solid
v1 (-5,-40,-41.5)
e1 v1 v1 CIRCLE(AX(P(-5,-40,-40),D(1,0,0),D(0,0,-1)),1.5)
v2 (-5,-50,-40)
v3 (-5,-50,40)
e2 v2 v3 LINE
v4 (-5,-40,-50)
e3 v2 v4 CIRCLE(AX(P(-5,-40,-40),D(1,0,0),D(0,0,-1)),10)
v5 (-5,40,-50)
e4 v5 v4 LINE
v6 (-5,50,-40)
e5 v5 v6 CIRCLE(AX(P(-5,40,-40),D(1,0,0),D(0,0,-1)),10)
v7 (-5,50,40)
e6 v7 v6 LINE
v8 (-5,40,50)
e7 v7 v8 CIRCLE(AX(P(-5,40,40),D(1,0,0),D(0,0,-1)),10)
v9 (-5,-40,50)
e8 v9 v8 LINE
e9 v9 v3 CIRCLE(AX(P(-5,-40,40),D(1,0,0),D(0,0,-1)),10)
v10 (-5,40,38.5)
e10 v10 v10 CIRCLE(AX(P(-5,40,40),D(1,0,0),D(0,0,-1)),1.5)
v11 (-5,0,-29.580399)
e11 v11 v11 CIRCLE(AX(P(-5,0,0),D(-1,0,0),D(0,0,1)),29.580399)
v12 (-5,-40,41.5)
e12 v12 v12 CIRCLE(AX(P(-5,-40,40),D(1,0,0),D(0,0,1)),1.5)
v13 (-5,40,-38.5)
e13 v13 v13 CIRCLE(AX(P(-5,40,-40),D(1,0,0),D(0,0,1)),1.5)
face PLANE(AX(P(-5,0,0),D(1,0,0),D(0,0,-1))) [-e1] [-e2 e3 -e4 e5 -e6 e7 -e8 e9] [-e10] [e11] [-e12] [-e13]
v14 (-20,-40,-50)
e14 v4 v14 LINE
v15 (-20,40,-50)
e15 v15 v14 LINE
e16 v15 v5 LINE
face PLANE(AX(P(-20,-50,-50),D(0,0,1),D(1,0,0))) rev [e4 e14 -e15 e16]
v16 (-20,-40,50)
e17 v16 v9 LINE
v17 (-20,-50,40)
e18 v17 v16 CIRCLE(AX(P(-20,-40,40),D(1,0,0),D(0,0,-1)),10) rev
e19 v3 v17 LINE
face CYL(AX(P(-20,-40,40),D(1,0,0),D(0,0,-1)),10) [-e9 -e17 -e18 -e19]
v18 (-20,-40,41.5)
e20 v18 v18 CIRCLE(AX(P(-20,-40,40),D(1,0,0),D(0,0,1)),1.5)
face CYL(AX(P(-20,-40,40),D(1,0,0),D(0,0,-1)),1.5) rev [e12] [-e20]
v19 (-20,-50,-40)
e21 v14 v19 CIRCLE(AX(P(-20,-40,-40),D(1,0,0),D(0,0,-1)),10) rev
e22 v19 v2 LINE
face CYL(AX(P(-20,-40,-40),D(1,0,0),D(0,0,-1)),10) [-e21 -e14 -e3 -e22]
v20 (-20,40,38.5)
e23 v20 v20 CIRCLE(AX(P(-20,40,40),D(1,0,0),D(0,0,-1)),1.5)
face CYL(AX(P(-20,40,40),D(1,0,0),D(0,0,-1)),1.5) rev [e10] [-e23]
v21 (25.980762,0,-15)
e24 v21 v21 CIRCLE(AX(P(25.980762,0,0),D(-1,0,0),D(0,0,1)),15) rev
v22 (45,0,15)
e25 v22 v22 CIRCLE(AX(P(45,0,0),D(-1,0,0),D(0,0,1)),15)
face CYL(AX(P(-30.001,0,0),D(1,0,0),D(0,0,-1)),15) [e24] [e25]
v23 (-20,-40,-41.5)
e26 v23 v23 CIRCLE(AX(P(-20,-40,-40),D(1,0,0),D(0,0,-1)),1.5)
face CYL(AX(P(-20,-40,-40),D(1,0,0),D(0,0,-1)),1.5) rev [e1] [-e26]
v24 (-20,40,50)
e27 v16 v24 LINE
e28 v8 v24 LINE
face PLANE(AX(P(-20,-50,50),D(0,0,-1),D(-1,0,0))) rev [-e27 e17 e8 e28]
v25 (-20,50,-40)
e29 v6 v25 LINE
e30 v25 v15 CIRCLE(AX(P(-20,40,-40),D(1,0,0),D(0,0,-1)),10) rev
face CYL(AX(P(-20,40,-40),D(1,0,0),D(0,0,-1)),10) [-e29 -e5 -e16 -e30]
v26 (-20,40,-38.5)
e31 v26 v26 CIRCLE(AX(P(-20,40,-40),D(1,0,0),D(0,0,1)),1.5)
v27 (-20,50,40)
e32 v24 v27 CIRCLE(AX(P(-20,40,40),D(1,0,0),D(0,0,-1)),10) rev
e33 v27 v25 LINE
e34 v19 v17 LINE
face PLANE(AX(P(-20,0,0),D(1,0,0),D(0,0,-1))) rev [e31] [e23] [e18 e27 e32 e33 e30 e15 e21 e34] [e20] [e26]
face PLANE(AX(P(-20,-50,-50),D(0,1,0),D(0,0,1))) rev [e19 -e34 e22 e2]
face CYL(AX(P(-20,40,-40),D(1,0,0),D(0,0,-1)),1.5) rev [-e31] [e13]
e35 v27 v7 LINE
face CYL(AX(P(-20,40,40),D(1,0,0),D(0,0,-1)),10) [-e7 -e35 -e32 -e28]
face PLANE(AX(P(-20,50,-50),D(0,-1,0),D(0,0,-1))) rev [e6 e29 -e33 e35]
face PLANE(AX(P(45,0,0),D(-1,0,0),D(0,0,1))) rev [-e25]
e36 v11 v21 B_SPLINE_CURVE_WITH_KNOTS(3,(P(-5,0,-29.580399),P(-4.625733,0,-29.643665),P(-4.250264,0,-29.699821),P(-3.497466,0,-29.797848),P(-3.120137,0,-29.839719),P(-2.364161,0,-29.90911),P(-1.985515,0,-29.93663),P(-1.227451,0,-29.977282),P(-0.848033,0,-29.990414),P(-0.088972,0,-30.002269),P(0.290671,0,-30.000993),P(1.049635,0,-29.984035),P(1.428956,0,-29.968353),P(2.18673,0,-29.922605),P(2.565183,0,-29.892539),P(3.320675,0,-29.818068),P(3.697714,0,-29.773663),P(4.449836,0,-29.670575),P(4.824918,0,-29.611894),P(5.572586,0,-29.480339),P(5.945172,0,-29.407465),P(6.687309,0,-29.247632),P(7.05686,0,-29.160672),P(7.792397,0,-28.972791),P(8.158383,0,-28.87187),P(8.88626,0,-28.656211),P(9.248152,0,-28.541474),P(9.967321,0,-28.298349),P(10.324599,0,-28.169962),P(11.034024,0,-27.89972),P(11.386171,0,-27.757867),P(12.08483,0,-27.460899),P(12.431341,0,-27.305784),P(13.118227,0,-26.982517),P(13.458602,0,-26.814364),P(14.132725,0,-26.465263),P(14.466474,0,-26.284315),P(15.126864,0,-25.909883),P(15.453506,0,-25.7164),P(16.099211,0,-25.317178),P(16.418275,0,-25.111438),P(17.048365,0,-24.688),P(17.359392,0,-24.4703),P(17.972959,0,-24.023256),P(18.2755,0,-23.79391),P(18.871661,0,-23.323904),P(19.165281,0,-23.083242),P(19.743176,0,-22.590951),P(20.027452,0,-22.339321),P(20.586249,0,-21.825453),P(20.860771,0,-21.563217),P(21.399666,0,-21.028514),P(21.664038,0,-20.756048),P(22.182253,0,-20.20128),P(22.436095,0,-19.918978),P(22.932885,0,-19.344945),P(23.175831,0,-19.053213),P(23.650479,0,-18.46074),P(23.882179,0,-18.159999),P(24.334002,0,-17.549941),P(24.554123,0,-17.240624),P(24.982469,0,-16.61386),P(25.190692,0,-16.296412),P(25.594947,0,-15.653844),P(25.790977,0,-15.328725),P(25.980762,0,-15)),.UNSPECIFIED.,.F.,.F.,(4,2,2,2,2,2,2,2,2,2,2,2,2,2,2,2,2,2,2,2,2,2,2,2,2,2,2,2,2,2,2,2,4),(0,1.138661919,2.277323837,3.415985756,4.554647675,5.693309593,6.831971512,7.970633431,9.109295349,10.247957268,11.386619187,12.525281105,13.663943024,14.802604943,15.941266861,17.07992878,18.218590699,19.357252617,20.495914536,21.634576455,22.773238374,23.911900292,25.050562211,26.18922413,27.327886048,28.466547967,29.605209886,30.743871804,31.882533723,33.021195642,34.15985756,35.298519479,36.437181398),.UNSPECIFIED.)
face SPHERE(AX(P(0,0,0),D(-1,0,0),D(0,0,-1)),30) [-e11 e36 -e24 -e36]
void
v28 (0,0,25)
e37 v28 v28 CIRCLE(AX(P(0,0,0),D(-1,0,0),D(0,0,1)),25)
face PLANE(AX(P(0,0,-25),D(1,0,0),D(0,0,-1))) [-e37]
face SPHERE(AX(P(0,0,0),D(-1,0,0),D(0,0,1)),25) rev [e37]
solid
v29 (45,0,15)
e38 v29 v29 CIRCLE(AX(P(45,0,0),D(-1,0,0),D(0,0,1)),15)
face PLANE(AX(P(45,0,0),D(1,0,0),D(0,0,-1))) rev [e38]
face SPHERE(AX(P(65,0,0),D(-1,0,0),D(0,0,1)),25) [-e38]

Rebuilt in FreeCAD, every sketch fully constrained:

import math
import FreeCAD as App
import Part
import Sketcher
Q = App.Units.Quantity


def edges_at(feature, points):
    """Names of the edges that pass closest to the given points."""
    edges = feature.Shape.Edges
    near = lambda p: min(range(len(edges)), key=lambda i: edges[i].distToShape(Part.Vertex(*p))[0])
    return sorted({f"Edge{near(p) + 1}" for p in points})


def add_polygon(sketch, points):
    """Adds a closed chain of lines whose ends are joined by coincident constraints."""
    first, n = sketch.GeometryCount, len(points)
    for a, b in zip(points, points[1:] + points[:1]):
        sketch.addGeometry(Part.LineSegment(App.Vector(*a, 0), App.Vector(*b, 0)), False)
    for i in range(n):
        sketch.addConstraint(Sketcher.Constraint("Coincident", first + i, 2, first + (i + 1) % n, 1))

doc = App.newDocument("Part")
params = doc.addObject("Spreadsheet::Sheet", "Params")
for row, (alias, value) in enumerate([
    ("sketch1_radius", "25 mm"),
    ("sketch1_radius2", "30 mm"),
    ("revolution_angle", "360 deg"),
    ("sketch2_diameter", "30 mm"),
    ("pad1_length", "10 mm"),
    ("sketch3_diameter", "30 mm"),
    ("sketch4_width", "100 mm"),
    ("pad3_length", "15 mm"),
    ("fillet_radius", "10 mm"),
    ("sketch5_diameter", "3 mm"),
    ("pocket1_length", "15 mm"),
    ("sketch6_radius", "25 mm"),
    ("sketch6_width", "45 mm"),
    ("revolution2_angle", "360 deg"),
], start=1):
    params.set(f"A{row}", alias)
    params.set(f"B{row}", "=" + value)
    params.setAlias(f"B{row}", alias)

body = doc.addObject("PartDesign::Body", "Body")
body.AllowCompound = True

# Sketch on XZ plane
sketch1 = body.newObject("Sketcher::SketchObject", "Sketch")
sketch1.AttachmentSupport = (doc.getObject("XZ_Plane"), [""])
sketch1.MapMode = "FlatFace"
sketch1.addGeometry(Part.ArcOfCircle(Part.Circle(App.Vector(0, 0, 0), App.Vector(0, 0, 1), 25), math.radians(-90), math.radians(0)), False)
sketch1.addGeometry(Part.LineSegment(App.Vector(25, 0, 0), App.Vector(30, 0, 0)), False)
sketch1.addGeometry(Part.ArcOfCircle(Part.Circle(App.Vector(0, 0, 0), App.Vector(0, 0, 1), 30), math.radians(-100), math.radians(0)), False)
sketch1.addGeometry(Part.LineSegment(App.Vector(-5, -30, 0), App.Vector(-5, 0, 0)), False)
sketch1.addGeometry(Part.LineSegment(App.Vector(-5, 0, 0), App.Vector(0, 0, 0)), False)
sketch1.addGeometry(Part.LineSegment(App.Vector(0, 0, 0), App.Vector(0, -25, 0)), False)
sketch1.addConstraint(Sketcher.Constraint("Coincident", 0, 2, 1, 1))
sketch1.addConstraint(Sketcher.Constraint("Coincident", 1, 2, 2, 2))
sketch1.addConstraint(Sketcher.Constraint("Coincident", 2, 1, 3, 1))
sketch1.addConstraint(Sketcher.Constraint("Coincident", 3, 2, 4, 1))
sketch1.addConstraint(Sketcher.Constraint("Coincident", 4, 2, 5, 1))
sketch1.addConstraint(Sketcher.Constraint("Coincident", 5, 2, 0, 1))
sketch1.addConstraint(Sketcher.Constraint("Horizontal", 1))
sketch1.addConstraint(Sketcher.Constraint("Vertical", 3))
sketch1.addConstraint(Sketcher.Constraint("Horizontal", 4))
sketch1.addConstraint(Sketcher.Constraint("Vertical", 5))
sketch1.addConstraint(Sketcher.Constraint("Coincident", 0, 3, -1, 1))
sketch1.addConstraint(Sketcher.Constraint("Coincident", 2, 3, -1, 1))
sketch1.addConstraint(Sketcher.Constraint("Coincident", 4, 2, -1, 1))
sketch1.addConstraint(Sketcher.Constraint("PointOnObject", 0, 2, -1))
sketch1.addConstraint(Sketcher.Constraint("Equal", 1, 4))
sketch1.addConstraint(Sketcher.Constraint("Radius", 0, Q("25 mm")))
sketch1.addConstraint(Sketcher.Constraint("Radius", 2, Q("30 mm")))
sketch1.setExpression("Constraints[15]", "Params.sketch1_radius")
sketch1.setExpression("Constraints[16]", "Params.sketch1_radius2")
revolution = body.newObject("PartDesign::Revolution", "Revolution")
revolution.Profile = sketch1
revolution.ReferenceAxis = (sketch1, ["H_Axis"])
revolution.setExpression("Angle", "Params.revolution_angle")

# Sketch on YZ plane
sketch2 = body.newObject("Sketcher::SketchObject", "Sketch001")
sketch2.AttachmentSupport = (doc.getObject("YZ_Plane"), [""])
sketch2.MapMode = "FlatFace"
sketch2.AttachmentOffset = App.Placement(App.Vector(0, 0, 35), App.Rotation())
sketch2.addGeometry(Part.Circle(App.Vector(0, 0, 0), App.Vector(0, 0, 1), 15), False)
sketch2.addConstraint(Sketcher.Constraint("Coincident", 0, 3, -1, 1))
sketch2.addConstraint(Sketcher.Constraint("Diameter", 0, Q("30 mm")))
sketch2.setExpression("Constraints[1]", "Params.sketch2_diameter")
pad1 = body.newObject("PartDesign::Pad", "Pad")
pad1.Profile = sketch2
pad1.setExpression("Length", "Params.pad1_length")

# Sketch on YZ plane
sketch3 = body.newObject("Sketcher::SketchObject", "Sketch002")
sketch3.AttachmentSupport = (doc.getObject("YZ_Plane"), [""])
sketch3.MapMode = "FlatFace"
sketch3.AttachmentOffset = App.Placement(App.Vector(0, 0, 35), App.Rotation())
sketch3.addGeometry(Part.Circle(App.Vector(0, 0, 0), App.Vector(0, 0, 1), 15), False)
sketch3.addConstraint(Sketcher.Constraint("Coincident", 0, 3, -1, 1))
sketch3.addConstraint(Sketcher.Constraint("Diameter", 0, Q("30 mm")))
sketch3.setExpression("Constraints[1]", "Params.sketch3_diameter")
pad2 = body.newObject("PartDesign::Pad", "Pad001")
pad2.Profile = sketch3
pad2.Type = "UpToFirst"
pad2.Reversed = True

# Sketch on YZ plane
sketch4 = body.newObject("Sketcher::SketchObject", "Sketch003")
sketch4.AttachmentSupport = (doc.getObject("YZ_Plane"), [""])
sketch4.MapMode = "FlatFace"
sketch4.AttachmentOffset = App.Placement(App.Vector(0, 0, -5), App.Rotation())
add_polygon(sketch4, [(50, -50), (-50, -50), (-50, 50), (50, 50)])  # lines 0-3
sketch4.addConstraint(Sketcher.Constraint("Horizontal", 0))
sketch4.addConstraint(Sketcher.Constraint("Vertical", 1))
sketch4.addConstraint(Sketcher.Constraint("Horizontal", 2))
sketch4.addConstraint(Sketcher.Constraint("Vertical", 3))
sketch4.addConstraint(Sketcher.Constraint("Symmetric", 0, 2, 2, 2, -1, 1))
sketch4.addConstraint(Sketcher.Constraint("Equal", 2, 1))
sketch4.addConstraint(Sketcher.Constraint("DistanceX", 0, 2, 0, 1, Q("100 mm")))
sketch4.setExpression("Constraints[10]", "Params.sketch4_width")
pad3 = body.newObject("PartDesign::Pad", "Pad002")
pad3.Profile = sketch4
pad3.setExpression("Length", "Params.pad3_length")
pad3.Reversed = True
doc.recompute()

fillet = body.newObject("PartDesign::Fillet", "Fillet")
fillet.Base = (pad3, edges_at(pad3, [
    (-12.5, -50, 50),
    (-12.5, 50, 50),
    (-12.5, 50, -50),
    (-12.5, -50, -50),
]))
fillet.setExpression("Radius", "Params.fillet_radius")

# Sketch on YZ plane
sketch5 = body.newObject("Sketcher::SketchObject", "Sketch004")
sketch5.AttachmentSupport = (doc.getObject("YZ_Plane"), [""])
sketch5.MapMode = "FlatFace"
sketch5.AttachmentOffset = App.Placement(App.Vector(0, 0, -5), App.Rotation())
sketch5.addGeometry(Part.Circle(App.Vector(40, 40, 0), App.Vector(0, 0, 1), 1.5), False)
sketch5.addGeometry(Part.Circle(App.Vector(40, -40, 0), App.Vector(0, 0, 1), 1.5), False)
sketch5.addGeometry(Part.Circle(App.Vector(-40, -40, 0), App.Vector(0, 0, 1), 1.5), False)
sketch5.addGeometry(Part.Circle(App.Vector(-40, 40, 0), App.Vector(0, 0, 1), 1.5), False)
sketch5.addConstraint(Sketcher.Constraint("Equal", 0, 1))
sketch5.addConstraint(Sketcher.Constraint("Equal", 1, 2))
sketch5.addConstraint(Sketcher.Constraint("Equal", 2, 3))
sketch5.addConstraint(Sketcher.Constraint("Symmetric", 0, 3, 2, 3, -1, 1))
sketch5.addConstraint(Sketcher.Constraint("Symmetric", 1, 3, 3, 3, -1, 1))
sketch5.addConstraint(Sketcher.Constraint("Symmetric", 1, 3, 2, 3, -2))
sketch5.addConstraint(Sketcher.Constraint("Diameter", 0, Q("3 mm")))
sketch5.addConstraint(Sketcher.Constraint("DistanceX", -1, 1, 0, 3, Q("40 mm")))
sketch5.addConstraint(Sketcher.Constraint("DistanceY", -1, 1, 0, 3, Q("40 mm")))
sketch5.setExpression("Constraints[6]", "Params.sketch5_diameter")
pocket1 = body.newObject("PartDesign::Pocket", "Pocket")
pocket1.Profile = sketch5
pocket1.setExpression("Length", "Params.pocket1_length")
body2 = doc.addObject("PartDesign::Body", "Body001")

# Sketch on XZ plane
sketch6 = body2.newObject("Sketcher::SketchObject", "Sketch005")
sketch6.AttachmentSupport = (doc.getObject("XZ_Plane001"), [""])
sketch6.MapMode = "FlatFace"
sketch6.addGeometry(Part.LineSegment(App.Vector(45, -15, 0), App.Vector(45, 0, 0)), False)
sketch6.addGeometry(Part.LineSegment(App.Vector(45, 0, 0), App.Vector(90, 0, 0)), False)
sketch6.addGeometry(Part.ArcOfCircle(Part.Circle(App.Vector(65, 0, 0), App.Vector(0, 0, 1), 25), math.radians(-143), math.radians(0)), False)
sketch6.addConstraint(Sketcher.Constraint("Coincident", 0, 2, 1, 1))
sketch6.addConstraint(Sketcher.Constraint("Coincident", 1, 2, 2, 2))
sketch6.addConstraint(Sketcher.Constraint("Coincident", 2, 1, 0, 1))
sketch6.addConstraint(Sketcher.Constraint("Vertical", 0))
sketch6.addConstraint(Sketcher.Constraint("Horizontal", 1))
sketch6.addConstraint(Sketcher.Constraint("PointOnObject", 2, 3, -1))
sketch6.addConstraint(Sketcher.Constraint("PointOnObject", 0, 2, -1))
sketch6.addConstraint(Sketcher.Constraint("Radius", 2, Q("25 mm")))
sketch6.addConstraint(Sketcher.Constraint("DistanceX", 1, 1, 1, 2, Q("45 mm")))
sketch6.addConstraint(Sketcher.Constraint("DistanceX", -1, 1, 2, 3, Q("65 mm")))
sketch6.setExpression("Constraints[7]", "Params.sketch6_radius")
sketch6.setExpression("Constraints[8]", "Params.sketch6_width")
revolution2 = body2.newObject("PartDesign::Revolution", "Revolution001")
revolution2.Profile = sketch6
revolution2.ReferenceAxis = (sketch6, ["H_Axis"])
revolution2.setExpression("Angle", "Params.revolution2_angle")

doc.recompute()
